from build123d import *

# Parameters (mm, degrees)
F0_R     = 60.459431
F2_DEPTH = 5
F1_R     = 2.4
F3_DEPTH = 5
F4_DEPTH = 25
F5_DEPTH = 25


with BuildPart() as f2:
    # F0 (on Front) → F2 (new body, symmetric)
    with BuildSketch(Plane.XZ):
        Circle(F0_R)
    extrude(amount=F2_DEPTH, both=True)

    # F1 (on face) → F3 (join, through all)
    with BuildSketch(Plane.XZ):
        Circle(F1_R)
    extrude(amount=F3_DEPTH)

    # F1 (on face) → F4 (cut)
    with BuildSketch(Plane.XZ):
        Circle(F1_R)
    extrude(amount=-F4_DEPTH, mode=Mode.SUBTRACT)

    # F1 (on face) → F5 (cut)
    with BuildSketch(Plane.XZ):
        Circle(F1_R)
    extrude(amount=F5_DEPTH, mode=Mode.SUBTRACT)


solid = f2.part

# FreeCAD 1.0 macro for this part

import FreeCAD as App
import Part
import Sketcher

V = App.Vector
Q = App.Units.Quantity

doc = App.newDocument("Part")
body = doc.addObject("PartDesign::Body", "Body")

sketch1 = body.newObject("Sketcher::SketchObject", "Sketch")
sketch1.AttachmentSupport = (doc.getObject("XZ_Plane"), [""])
sketch1.MapMode = "FlatFace"
sketch1.addGeometry(Part.Circle(V(0, 0, 0), V(0, 0, 1), 60), False)
sketch1.addConstraint([
    Sketcher.Constraint("Coincident", 0, 3, -1, 1),
    Sketcher.Constraint("Diameter", 0, Q("120.918862 mm")),
])
pad1 = body.newObject("PartDesign::Pad", "Pad")
pad1.Profile = sketch1
pad1.Length = 10
pad1.Midplane = True

sketch2 = body.newObject("Sketcher::SketchObject", "Sketch001")
sketch2.AttachmentSupport = (doc.getObject("XZ_Plane"), [""])
sketch2.MapMode = "FlatFace"
sketch2.addGeometry(Part.Circle(V(0, 0, 0), V(0, 0, 1), 2.4), False)
sketch2.addConstraint([
    Sketcher.Constraint("Coincident", 0, 3, -1, 1),
    Sketcher.Constraint("Diameter", 0, Q("4.8 mm")),
])
pad2 = body.newObject("PartDesign::Pad", "Pad001")
pad2.Profile = sketch2
pad2.Type = "UpToLast"

sketch3 = body.newObject("Sketcher::SketchObject", "Sketch002")
sketch3.AttachmentSupport = (doc.getObject("XZ_Plane"), [""])
sketch3.MapMode = "FlatFace"
sketch3.addGeometry(Part.Circle(V(0, 0, 0), V(0, 0, 1), 2.4), False)
sketch3.addConstraint([
    Sketcher.Constraint("Coincident", 0, 3, -1, 1),
    Sketcher.Constraint("Diameter", 0, Q("4.8 mm")),
])
pocket1 = body.newObject("PartDesign::Pocket", "Pocket")
pocket1.Profile = sketch3
pocket1.Length = 25

sketch4 = body.newObject("Sketcher::SketchObject", "Sketch003")
sketch4.AttachmentSupport = (doc.getObject("XZ_Plane"), [""])
sketch4.MapMode = "FlatFace"
sketch4.addGeometry(Part.Circle(V(0, 0, 0), V(0, 0, 1), 2.4), False)
sketch4.addConstraint([
    Sketcher.Constraint("Coincident", 0, 3, -1, 1),
    Sketcher.Constraint("Diameter", 0, Q("4.8 mm")),
])
pocket2 = body.newObject("PartDesign::Pocket", "Pocket001")
pocket2.Profile = sketch4
pocket2.Length = 25
pocket2.Reversed = True

doc.recompute()
